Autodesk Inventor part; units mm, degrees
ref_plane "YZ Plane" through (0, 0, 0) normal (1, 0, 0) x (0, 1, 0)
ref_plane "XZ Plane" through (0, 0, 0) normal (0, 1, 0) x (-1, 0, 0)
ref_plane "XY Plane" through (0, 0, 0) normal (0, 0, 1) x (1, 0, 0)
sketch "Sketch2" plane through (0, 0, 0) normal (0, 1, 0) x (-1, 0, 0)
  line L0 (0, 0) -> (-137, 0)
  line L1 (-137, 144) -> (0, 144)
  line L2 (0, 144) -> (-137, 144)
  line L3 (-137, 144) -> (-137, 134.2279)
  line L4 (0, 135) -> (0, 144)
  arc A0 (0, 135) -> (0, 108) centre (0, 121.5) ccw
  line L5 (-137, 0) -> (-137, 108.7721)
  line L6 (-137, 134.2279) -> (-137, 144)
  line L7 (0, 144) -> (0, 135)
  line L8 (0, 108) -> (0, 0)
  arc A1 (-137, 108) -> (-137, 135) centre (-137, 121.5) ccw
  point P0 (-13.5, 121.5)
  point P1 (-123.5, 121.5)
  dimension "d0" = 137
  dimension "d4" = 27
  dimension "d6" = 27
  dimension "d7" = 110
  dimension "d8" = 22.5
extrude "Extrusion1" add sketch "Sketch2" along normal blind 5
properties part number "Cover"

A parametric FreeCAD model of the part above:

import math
import FreeCAD as App
import Part
import Sketcher

doc = App.newDocument("Part")
body = doc.addObject("PartDesign::Body", "Body")

# Sketch on XZ plane
sketch1 = body.newObject("Sketcher::SketchObject", "Sketch")
sketch1.AttachmentSupport = (doc.getObject("XZ_Plane"), [""])
sketch1.MapMode = "FlatFace"
sketch1.addGeometry(Part.LineSegment(App.Vector(137, 0, 0), App.Vector(0, 0, 0)), False)
sketch1.addGeometry(Part.LineSegment(App.Vector(0, 0, 0), App.Vector(0, 108, 0)), False)
sketch1.addGeometry(Part.ArcOfCircle(Part.Circle(App.Vector(0, 122, 0), App.Vector(0, 0, 1), 14), math.radians(-90), math.radians(90)), False)
sketch1.addGeometry(Part.LineSegment(App.Vector(0, 135, 0), App.Vector(0, 144, 0)), False)
sketch1.addGeometry(Part.LineSegment(App.Vector(0, 144, 0), App.Vector(137, 144, 0)), False)
sketch1.addGeometry(Part.LineSegment(App.Vector(137, 144, 0), App.Vector(137, 135, 0)), False)
sketch1.addGeometry(Part.ArcOfCircle(Part.Circle(App.Vector(137, 122, 0), App.Vector(0, 0, 1), 14), math.radians(90), math.radians(270)), False)
sketch1.addGeometry(Part.LineSegment(App.Vector(137, 108, 0), App.Vector(137, 0, 0)), False)
sketch1.addConstraint(Sketcher.Constraint("Coincident", 0, 2, 1, 1))
sketch1.addConstraint(Sketcher.Constraint("Coincident", 1, 2, 2, 1))
sketch1.addConstraint(Sketcher.Constraint("Coincident", 2, 2, 3, 1))
sketch1.addConstraint(Sketcher.Constraint("Coincident", 3, 2, 4, 1))
sketch1.addConstraint(Sketcher.Constraint("Coincident", 4, 2, 5, 1))
sketch1.addConstraint(Sketcher.Constraint("Coincident", 5, 2, 6, 1))
sketch1.addConstraint(Sketcher.Constraint("Coincident", 6, 2, 7, 1))
sketch1.addConstraint(Sketcher.Constraint("Coincident", 7, 2, 0, 1))
sketch1.addConstraint(Sketcher.Constraint("Horizontal", 0))
sketch1.addConstraint(Sketcher.Constraint("Vertical", 1))
sketch1.addConstraint(Sketcher.Constraint("Vertical", 3))
sketch1.addConstraint(Sketcher.Constraint("Horizontal", 4))
sketch1.addConstraint(Sketcher.Constraint("Vertical", 5))
sketch1.addConstraint(Sketcher.Constraint("Vertical", 7))
sketch1.addConstraint(Sketcher.Constraint("Coincident", 0, 2, -1, 1))
sketch1.addConstraint(Sketcher.Constraint("Equal", 2, 6))
sketch1.addConstraint(Sketcher.Constraint("PointOnObject", 2, 3, -2))
sketch1.addConstraint(Sketcher.Constraint("PointOnObject", 2, 2, -2))
sketch1.addConstraint(Sketcher.Constraint("Horizontal", 2, 3, 6, 3))
sketch1.addConstraint(Sketcher.Constraint("Vertical", 6, 3, 4, 2))
sketch1.addConstraint(Sketcher.Constraint("Vertical", 5, 2, 6, 2))
sketch1.addConstraint(Sketcher.Constraint("Radius", 2, 13.5))
sketch1.addConstraint(Sketcher.Constraint("DistanceX", 0, 2, 0, 1, 137.0))
sketch1.addConstraint(Sketcher.Constraint("DistanceY", 2, 3, 3, 2, 22.5))
sketch1.addConstraint(Sketcher.Constraint("DistanceY", 1, 1, 1, 2, 108.0))
pad1 = body.newObject("PartDesign::Pad", "Pad")
pad1.Profile = sketch1
pad1.Length = 5
pad1.Reversed = True

doc.recompute()
